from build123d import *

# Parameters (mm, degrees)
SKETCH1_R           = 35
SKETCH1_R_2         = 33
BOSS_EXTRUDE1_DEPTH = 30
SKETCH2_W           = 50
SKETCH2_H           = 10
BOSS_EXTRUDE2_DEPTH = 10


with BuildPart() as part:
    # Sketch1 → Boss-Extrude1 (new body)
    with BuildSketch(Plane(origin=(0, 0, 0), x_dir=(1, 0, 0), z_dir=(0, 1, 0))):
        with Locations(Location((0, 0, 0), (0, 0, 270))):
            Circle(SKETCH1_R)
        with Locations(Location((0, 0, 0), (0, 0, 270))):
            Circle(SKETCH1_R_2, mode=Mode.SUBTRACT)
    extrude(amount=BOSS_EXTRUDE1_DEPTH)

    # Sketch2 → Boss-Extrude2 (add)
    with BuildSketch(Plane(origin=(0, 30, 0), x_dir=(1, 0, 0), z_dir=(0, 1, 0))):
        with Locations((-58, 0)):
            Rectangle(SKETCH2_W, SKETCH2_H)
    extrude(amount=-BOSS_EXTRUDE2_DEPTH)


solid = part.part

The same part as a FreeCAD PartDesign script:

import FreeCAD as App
import Part
import Sketcher
from FreeCAD import Vector
Q = App.Units.Quantity


def add_polygon(sketch, points):
    """Adds a closed chain of lines whose ends are joined by coincident constraints."""
    first, n = sketch.GeometryCount, len(points)
    for a, b in zip(points, points[1:] + points[:1]):
        sketch.addGeometry(Part.LineSegment(App.Vector(*a, 0), App.Vector(*b, 0)), False)
    for i in range(n):
        sketch.addConstraint(Sketcher.Constraint("Coincident", first + i, 2, first + (i + 1) % n, 1))

doc = App.newDocument("Part")
body = doc.addObject("PartDesign::Body", "Body")

# Sketch on XZ plane
sketch1 = doc.addObject("Sketcher::SketchObject", "Sketch")
body.addObject(sketch1)
sketch1.AttachmentSupport = (doc.XZ_Plane, [""])
sketch1.MapMode = "FlatFace"
sketch1.addGeometry(Part.Circle(Vector(0, 0, 0), Vector(0, 0, 1), 35), False)
sketch1.addGeometry(Part.Circle(Vector(0, 0, 0), Vector(0, 0, 1), 33), False)
sketch1.addConstraint(Sketcher.Constraint("Coincident", 0, 3, -1, 1))
sketch1.addConstraint(Sketcher.Constraint("Coincident", 1, 3, -1, 1))
sketch1.addConstraint(Sketcher.Constraint("Diameter", 0, Q("70 mm")))
sketch1.addConstraint(Sketcher.Constraint("Diameter", 1, Q("66 mm")))
pad1 = doc.addObject("PartDesign::Pad", "Pad")
body.addObject(pad1)
pad1.Profile = sketch1
pad1.Length = 30
pad1.Reversed = True

# Sketch on XZ plane
sketch2 = doc.addObject("Sketcher::SketchObject", "Sketch001")
body.addObject(sketch2)
sketch2.AttachmentSupport = (doc.XZ_Plane, [""])
sketch2.MapMode = "FlatFace"
sketch2.AttachmentOffset = App.Placement(Vector(0, 0, -30), App.Rotation())
add_polygon(sketch2, [(-83, -5), (-83, 5), (-33, 5), (-33, -5)])  # lines 0-3
sketch2.addConstraint(Sketcher.Constraint("Vertical", 0))
sketch2.addConstraint(Sketcher.Constraint("Horizontal", 1))
sketch2.addConstraint(Sketcher.Constraint("Vertical", 2))
sketch2.addConstraint(Sketcher.Constraint("Horizontal", 3))
sketch2.addConstraint(Sketcher.Constraint("DistanceX", 1, 1, 1, 2, Q("50 mm")))
sketch2.addConstraint(Sketcher.Constraint("DistanceY", 0, 1, 0, 2, Q("10 mm")))
sketch2.addConstraint(Sketcher.Constraint("DistanceX", 0, 2, -1, 1, Q("83 mm")))
sketch2.addConstraint(Sketcher.Constraint("DistanceY", -1, 1, 0, 2, Q("5 mm")))
pad2 = doc.addObject("PartDesign::Pad", "Pad001")
body.addObject(pad2)
pad2.Profile = sketch2
pad2.Length = 10

doc.recompute()
